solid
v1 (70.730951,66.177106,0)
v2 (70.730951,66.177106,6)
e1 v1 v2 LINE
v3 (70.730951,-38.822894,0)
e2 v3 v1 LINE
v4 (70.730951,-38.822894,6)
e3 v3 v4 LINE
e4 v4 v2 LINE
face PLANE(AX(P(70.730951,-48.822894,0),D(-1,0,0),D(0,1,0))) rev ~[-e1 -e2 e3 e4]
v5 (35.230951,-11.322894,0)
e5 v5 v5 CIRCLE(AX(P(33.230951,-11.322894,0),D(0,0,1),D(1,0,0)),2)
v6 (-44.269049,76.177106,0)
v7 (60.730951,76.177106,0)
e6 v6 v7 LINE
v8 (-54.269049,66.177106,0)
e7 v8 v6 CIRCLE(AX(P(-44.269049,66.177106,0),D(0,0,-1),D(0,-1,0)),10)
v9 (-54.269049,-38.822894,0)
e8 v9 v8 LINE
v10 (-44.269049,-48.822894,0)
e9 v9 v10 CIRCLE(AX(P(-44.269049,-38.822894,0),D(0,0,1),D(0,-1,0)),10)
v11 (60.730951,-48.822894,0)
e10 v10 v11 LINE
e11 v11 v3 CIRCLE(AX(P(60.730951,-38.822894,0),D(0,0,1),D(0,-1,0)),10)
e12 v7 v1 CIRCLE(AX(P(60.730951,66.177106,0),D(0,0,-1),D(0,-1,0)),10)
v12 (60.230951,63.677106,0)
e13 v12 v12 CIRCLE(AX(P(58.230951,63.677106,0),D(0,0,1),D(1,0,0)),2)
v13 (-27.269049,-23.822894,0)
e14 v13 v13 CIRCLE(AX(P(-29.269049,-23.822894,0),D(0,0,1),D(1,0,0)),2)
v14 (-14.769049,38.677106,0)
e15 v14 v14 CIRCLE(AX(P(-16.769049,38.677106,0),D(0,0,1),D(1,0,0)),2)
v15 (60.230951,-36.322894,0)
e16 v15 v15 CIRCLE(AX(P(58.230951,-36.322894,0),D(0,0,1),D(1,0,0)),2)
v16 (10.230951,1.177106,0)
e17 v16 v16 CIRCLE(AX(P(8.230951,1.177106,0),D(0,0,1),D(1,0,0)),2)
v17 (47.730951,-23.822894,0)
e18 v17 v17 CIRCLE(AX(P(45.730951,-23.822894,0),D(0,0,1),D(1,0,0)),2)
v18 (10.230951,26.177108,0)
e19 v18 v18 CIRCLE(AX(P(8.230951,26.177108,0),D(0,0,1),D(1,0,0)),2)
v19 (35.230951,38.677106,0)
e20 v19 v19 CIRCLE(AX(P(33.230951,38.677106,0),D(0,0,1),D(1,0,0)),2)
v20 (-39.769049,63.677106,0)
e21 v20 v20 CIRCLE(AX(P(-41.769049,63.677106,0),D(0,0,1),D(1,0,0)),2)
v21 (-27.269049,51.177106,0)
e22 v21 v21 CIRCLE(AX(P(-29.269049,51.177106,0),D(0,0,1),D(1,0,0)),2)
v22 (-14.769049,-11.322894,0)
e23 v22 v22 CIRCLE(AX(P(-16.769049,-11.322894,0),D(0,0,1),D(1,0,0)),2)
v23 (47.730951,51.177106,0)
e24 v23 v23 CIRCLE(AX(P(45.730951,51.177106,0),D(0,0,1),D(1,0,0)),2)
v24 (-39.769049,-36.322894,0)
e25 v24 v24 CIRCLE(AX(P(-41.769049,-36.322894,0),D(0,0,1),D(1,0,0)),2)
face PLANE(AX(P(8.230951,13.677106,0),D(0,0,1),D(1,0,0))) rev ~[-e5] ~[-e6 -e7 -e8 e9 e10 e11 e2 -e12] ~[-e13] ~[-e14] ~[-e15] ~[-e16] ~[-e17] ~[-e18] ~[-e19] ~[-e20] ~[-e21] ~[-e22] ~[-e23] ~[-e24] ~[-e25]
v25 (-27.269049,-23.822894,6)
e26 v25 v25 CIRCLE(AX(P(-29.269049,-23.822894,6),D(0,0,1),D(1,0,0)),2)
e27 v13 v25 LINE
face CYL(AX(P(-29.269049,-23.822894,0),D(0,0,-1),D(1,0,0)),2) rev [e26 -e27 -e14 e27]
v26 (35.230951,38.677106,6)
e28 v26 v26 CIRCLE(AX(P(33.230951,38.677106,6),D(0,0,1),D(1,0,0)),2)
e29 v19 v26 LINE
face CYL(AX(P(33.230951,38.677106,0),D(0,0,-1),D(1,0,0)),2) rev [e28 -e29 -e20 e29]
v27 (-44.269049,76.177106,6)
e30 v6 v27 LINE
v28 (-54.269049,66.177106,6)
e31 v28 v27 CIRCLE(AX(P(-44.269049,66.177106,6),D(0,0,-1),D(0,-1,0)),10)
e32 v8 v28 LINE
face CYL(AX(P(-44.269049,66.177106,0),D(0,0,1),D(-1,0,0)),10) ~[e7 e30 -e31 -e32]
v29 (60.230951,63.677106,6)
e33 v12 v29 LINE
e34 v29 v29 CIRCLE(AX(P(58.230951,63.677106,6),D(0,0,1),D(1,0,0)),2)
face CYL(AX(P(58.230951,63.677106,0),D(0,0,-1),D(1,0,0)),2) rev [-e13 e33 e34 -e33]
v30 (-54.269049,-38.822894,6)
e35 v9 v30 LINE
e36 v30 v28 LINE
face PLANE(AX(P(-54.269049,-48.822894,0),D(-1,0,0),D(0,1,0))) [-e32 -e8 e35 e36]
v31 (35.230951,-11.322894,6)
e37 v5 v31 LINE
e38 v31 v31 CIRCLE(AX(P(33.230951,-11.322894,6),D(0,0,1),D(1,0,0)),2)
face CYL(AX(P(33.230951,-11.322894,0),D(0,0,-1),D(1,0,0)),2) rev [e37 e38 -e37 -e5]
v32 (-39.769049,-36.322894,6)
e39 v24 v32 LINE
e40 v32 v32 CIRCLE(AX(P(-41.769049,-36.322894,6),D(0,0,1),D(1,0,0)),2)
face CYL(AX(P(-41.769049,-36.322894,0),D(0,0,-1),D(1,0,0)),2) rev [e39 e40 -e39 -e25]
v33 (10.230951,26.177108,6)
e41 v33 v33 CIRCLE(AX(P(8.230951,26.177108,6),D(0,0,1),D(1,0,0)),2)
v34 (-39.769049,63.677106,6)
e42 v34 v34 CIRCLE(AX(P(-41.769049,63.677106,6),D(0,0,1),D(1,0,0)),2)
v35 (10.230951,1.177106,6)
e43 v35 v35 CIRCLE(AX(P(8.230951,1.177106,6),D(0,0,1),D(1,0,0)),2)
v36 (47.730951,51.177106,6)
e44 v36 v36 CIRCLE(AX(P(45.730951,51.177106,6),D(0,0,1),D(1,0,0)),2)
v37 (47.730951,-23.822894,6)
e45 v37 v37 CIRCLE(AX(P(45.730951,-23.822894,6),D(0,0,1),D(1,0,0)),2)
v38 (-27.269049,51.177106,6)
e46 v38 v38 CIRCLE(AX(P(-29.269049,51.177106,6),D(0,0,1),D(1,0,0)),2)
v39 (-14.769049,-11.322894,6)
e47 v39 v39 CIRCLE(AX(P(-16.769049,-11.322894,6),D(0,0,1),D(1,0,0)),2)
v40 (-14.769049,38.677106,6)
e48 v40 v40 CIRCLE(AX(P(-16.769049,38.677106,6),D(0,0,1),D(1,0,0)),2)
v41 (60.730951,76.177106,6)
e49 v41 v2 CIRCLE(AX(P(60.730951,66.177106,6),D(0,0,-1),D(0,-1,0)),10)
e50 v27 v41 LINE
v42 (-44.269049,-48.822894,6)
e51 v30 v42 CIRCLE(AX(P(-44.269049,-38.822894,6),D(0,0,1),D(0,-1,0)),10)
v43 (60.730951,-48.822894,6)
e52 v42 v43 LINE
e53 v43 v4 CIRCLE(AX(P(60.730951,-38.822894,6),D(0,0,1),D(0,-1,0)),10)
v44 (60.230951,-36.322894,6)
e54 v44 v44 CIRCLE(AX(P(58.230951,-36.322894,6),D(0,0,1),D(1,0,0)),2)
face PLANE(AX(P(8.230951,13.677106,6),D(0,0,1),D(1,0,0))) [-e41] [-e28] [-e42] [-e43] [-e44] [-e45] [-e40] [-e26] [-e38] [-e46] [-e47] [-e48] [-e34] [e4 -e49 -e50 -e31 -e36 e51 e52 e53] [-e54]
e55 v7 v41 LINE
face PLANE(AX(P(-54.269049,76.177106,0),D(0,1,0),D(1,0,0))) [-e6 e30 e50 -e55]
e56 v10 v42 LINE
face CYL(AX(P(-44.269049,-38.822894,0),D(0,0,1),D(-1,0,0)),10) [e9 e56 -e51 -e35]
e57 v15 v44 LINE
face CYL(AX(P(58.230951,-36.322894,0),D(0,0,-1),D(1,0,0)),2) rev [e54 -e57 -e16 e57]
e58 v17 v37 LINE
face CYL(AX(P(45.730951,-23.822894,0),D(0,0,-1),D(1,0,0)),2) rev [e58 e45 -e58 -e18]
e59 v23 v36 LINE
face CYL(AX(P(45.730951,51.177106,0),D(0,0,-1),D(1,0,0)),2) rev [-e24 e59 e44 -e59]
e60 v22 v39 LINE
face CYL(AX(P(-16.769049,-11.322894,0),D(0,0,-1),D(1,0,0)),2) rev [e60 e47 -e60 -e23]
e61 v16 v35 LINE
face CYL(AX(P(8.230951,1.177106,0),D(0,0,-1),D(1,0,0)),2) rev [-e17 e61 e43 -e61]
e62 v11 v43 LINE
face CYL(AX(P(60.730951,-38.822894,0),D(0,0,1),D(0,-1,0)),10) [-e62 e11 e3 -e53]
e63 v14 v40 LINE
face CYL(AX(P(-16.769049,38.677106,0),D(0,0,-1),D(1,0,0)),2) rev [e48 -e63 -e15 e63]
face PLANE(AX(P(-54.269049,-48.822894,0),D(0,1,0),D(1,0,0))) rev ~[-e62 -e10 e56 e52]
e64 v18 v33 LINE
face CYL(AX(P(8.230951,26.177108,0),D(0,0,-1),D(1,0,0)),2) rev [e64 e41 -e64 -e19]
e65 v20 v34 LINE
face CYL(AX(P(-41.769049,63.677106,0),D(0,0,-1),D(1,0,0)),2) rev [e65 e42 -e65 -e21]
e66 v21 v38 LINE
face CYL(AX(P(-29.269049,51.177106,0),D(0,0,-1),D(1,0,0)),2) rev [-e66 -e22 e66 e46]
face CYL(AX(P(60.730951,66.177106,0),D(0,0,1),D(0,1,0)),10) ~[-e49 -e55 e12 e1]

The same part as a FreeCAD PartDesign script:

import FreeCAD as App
import Part
import Sketcher
from FreeCAD import Vector
Q = App.Units.Quantity


def edges_at(feature, points):
    """Names of the edges that pass closest to the given points."""
    edges = feature.Shape.Edges
    near = lambda p: min(range(len(edges)), key=lambda i: edges[i].distToShape(Part.Vertex(*p))[0])
    return sorted({f"Edge{near(p) + 1}" for p in points})


def add_polygon(sketch, points):
    """Adds a closed chain of lines whose ends are joined by coincident constraints."""
    first, n = sketch.GeometryCount, len(points)
    for a, b in zip(points, points[1:] + points[:1]):
        sketch.addGeometry(Part.LineSegment(App.Vector(*a, 0), App.Vector(*b, 0)), False)
    for i in range(n):
        sketch.addConstraint(Sketcher.Constraint("Coincident", first + i, 2, first + (i + 1) % n, 1))

doc = App.newDocument("Part")
body = doc.addObject("PartDesign::Body", "Body")

# Sketch on XY plane
sketch1 = body.newObject("Sketcher::SketchObject", "Sketch")
sketch1.AttachmentSupport = (doc.getObject("XY_Plane"), [""])
sketch1.MapMode = "FlatFace"
add_polygon(sketch1, [(-54.3, 76.2), (-54.3, -48.8), (70.7, -48.8), (70.7, 76.2)])  # lines 0-3
sketch1.addGeometry(Part.Circle(Vector(-41.8, -36.3, 0), Vector(0, 0, 1), 2), False)  # 4
sketch1.addGeometry(Part.Circle(Vector(-29.3, -23.8, 0), Vector(0, 0, 1), 2), False)  # 5
sketch1.addGeometry(Part.Circle(Vector(-16.8, -11.3, 0), Vector(0, 0, 1), 2), False)  # 6
sketch1.addGeometry(Part.Circle(Vector(58.2, -36.3, 0), Vector(0, 0, 1), 2), False)  # 7
sketch1.addGeometry(Part.Circle(Vector(45.7, -23.8, 0), Vector(0, 0, 1), 2), False)  # 8
sketch1.addGeometry(Part.Circle(Vector(33.2, -11.3, 0), Vector(0, 0, 1), 2), False)  # 9
sketch1.addGeometry(Part.Circle(Vector(8.2, 1.2, 0), Vector(0, 0, 1), 2), False)  # 10
sketch1.addGeometry(Part.Circle(Vector(-16.8, 38.7, 0), Vector(0, 0, 1), 2), False)  # 11
sketch1.addGeometry(Part.Circle(Vector(-29.3, 51.2, 0), Vector(0, 0, 1), 2), False)  # 12
sketch1.addGeometry(Part.Circle(Vector(-41.8, 63.7, 0), Vector(0, 0, 1), 2), False)  # 13
sketch1.addGeometry(Part.Circle(Vector(8.2, 26.2, 0), Vector(0, 0, 1), 2), False)  # 14
sketch1.addGeometry(Part.Circle(Vector(33.2, 38.7, 0), Vector(0, 0, 1), 2), False)  # 15
sketch1.addGeometry(Part.Circle(Vector(45.7, 51.2, 0), Vector(0, 0, 1), 2), False)  # 16
sketch1.addGeometry(Part.Circle(Vector(58.2, 63.7, 0), Vector(0, 0, 1), 2), False)  # 17
sketch1.addConstraint(Sketcher.Constraint("Vertical", 0))
sketch1.addConstraint(Sketcher.Constraint("Horizontal", 1))
sketch1.addConstraint(Sketcher.Constraint("Vertical", 2))
sketch1.addConstraint(Sketcher.Constraint("Horizontal", 3))
sketch1.addConstraint(Sketcher.Constraint("Equal", 4, 5))
sketch1.addConstraint(Sketcher.Constraint("Equal", 5, 6))
sketch1.addConstraint(Sketcher.Constraint("Equal", 6, 7))
sketch1.addConstraint(Sketcher.Constraint("Equal", 7, 8))
sketch1.addConstraint(Sketcher.Constraint("Equal", 8, 9))
sketch1.addConstraint(Sketcher.Constraint("Equal", 9, 10))
sketch1.addConstraint(Sketcher.Constraint("Equal", 10, 11))
sketch1.addConstraint(Sketcher.Constraint("Equal", 11, 12))
sketch1.addConstraint(Sketcher.Constraint("Equal", 12, 13))
sketch1.addConstraint(Sketcher.Constraint("Equal", 13, 14))
sketch1.addConstraint(Sketcher.Constraint("Equal", 14, 15))
sketch1.addConstraint(Sketcher.Constraint("Equal", 15, 16))
sketch1.addConstraint(Sketcher.Constraint("Equal", 16, 17))
sketch1.addConstraint(Sketcher.Constraint("Horizontal", 4, 3, 7, 3))
sketch1.addConstraint(Sketcher.Constraint("Horizontal", 5, 3, 8, 3))
sketch1.addConstraint(Sketcher.Constraint("Horizontal", 6, 3, 9, 3))
sketch1.addConstraint(Sketcher.Constraint("Horizontal", 11, 3, 15, 3))
sketch1.addConstraint(Sketcher.Constraint("Horizontal", 12, 3, 16, 3))
sketch1.addConstraint(Sketcher.Constraint("Horizontal", 13, 3, 17, 3))
sketch1.addConstraint(Sketcher.Constraint("Vertical", 6, 3, 11, 3))
sketch1.addConstraint(Sketcher.Constraint("Vertical", 5, 3, 12, 3))
sketch1.addConstraint(Sketcher.Constraint("Vertical", 4, 3, 13, 3))
sketch1.addConstraint(Sketcher.Constraint("Vertical", 10, 3, 14, 3))
sketch1.addConstraint(Sketcher.Constraint("Vertical", 9, 3, 15, 3))
sketch1.addConstraint(Sketcher.Constraint("Vertical", 8, 3, 16, 3))
sketch1.addConstraint(Sketcher.Constraint("Vertical", 7, 3, 17, 3))
sketch1.addConstraint(Sketcher.Constraint("Equal", 3, 0))
sketch1.addConstraint(Sketcher.Constraint("Diameter", 4, Q("4 mm")))
sketch1.addConstraint(Sketcher.Constraint("DistanceX", 1, 1, 1, 2, Q("125 mm")))
sketch1.addConstraint(Sketcher.Constraint("DistanceX", 4, 3, 6, 3, Q("25 mm")))
sketch1.addConstraint(Sketcher.Constraint("DistanceY", 4, 3, 6, 3, Q("25 mm")))
sketch1.addConstraint(Sketcher.Constraint("DistanceX", 6, 3, 7, 3, Q("75 mm")))
sketch1.addConstraint(Sketcher.Constraint("DistanceX", 5, 3, 8, 3, Q("75 mm")))
sketch1.addConstraint(Sketcher.Constraint("DistanceX", 9, 3, 7, 3, Q("25 mm")))
sketch1.addConstraint(Sketcher.Constraint("DistanceX", 6, 3, 10, 3, Q("25 mm")))
sketch1.addConstraint(Sketcher.Constraint("DistanceY", 5, 3, 10, 3, Q("25 mm")))
sketch1.addConstraint(Sketcher.Constraint("DistanceY", 6, 3, 11, 3, Q("50 mm")))
sketch1.addConstraint(Sketcher.Constraint("DistanceY", 10, 3, 12, 3, Q("50 mm")))
sketch1.addConstraint(Sketcher.Constraint("DistanceY", 11, 3, 13, 3, Q("25 mm")))
sketch1.addConstraint(Sketcher.Constraint("DistanceY", 14, 3, 12, 3, Q("24.999998 mm")))
sketch1.addConstraint(Sketcher.Constraint("DistanceX", 0, 2, 5, 3, Q("25 mm")))
sketch1.addConstraint(Sketcher.Constraint("DistanceY", 0, 2, 5, 3, Q("25 mm")))
sketch1.addConstraint(Sketcher.Constraint("DistanceX", 4, 3, 5, 3, Q("12.5 mm")))
sketch1.addConstraint(Sketcher.Constraint("DistanceY", 4, 3, 5, 3, Q("12.5 mm")))
sketch1.addConstraint(Sketcher.Constraint("DistanceX", 4, 3, -1, 1, Q("41.769049 mm")))
sketch1.addConstraint(Sketcher.Constraint("DistanceY", -1, 1, 14, 3, Q("26.177108 mm")))
pad1 = body.newObject("PartDesign::Pad", "Pad")
pad1.Profile = sketch1
pad1.Length = 6
doc.recompute()

fillet = body.newObject("PartDesign::Fillet", "Fillet")
fillet.Base = (pad1, edges_at(pad1, [
    (-54.269, 76.177, 3),
    (-54.269, -48.823, 3),
    (70.731, -48.823, 3),
    (70.731, 76.177, 3),
]))
fillet.Radius = 10

doc.recompute()
